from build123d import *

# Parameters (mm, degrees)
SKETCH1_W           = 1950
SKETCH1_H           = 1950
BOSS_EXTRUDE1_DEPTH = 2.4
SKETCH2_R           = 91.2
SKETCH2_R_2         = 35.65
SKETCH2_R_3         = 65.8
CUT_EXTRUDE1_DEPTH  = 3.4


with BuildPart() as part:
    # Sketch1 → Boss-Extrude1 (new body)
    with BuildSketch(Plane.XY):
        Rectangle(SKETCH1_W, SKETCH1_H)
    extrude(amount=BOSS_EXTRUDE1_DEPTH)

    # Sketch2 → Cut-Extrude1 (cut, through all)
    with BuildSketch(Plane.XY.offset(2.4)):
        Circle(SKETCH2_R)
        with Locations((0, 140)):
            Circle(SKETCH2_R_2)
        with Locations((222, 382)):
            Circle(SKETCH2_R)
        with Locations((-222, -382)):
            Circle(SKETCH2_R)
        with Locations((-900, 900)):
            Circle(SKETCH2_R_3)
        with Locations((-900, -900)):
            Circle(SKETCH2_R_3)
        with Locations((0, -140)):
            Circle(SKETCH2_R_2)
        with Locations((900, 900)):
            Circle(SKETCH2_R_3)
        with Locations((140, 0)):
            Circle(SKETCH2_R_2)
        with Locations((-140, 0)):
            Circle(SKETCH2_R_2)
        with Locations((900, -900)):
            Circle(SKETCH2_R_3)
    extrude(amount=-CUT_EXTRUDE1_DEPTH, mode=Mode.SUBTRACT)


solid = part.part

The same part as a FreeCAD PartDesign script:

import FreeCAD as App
import Part
import Sketcher

V = App.Vector
Q = App.Units.Quantity


def add_polygon(sketch, points):
    """Adds a closed chain of lines whose ends are joined by coincident constraints."""
    first, n = sketch.GeometryCount, len(points)
    for a, b in zip(points, points[1:] + points[:1]):
        sketch.addGeometry(Part.LineSegment(App.Vector(*a, 0), App.Vector(*b, 0)), False)
    for i in range(n):
        sketch.addConstraint(Sketcher.Constraint("Coincident", first + i, 2, first + (i + 1) % n, 1))

doc = App.newDocument("Part")
body = doc.addObject("PartDesign::Body", "Body")

# Sketch on XY plane
sketch1 = doc.addObject("Sketcher::SketchObject", "Sketch")
body.addObject(sketch1)
sketch1.AttachmentSupport = (doc.XY_Plane, [""])
sketch1.MapMode = "FlatFace"
add_polygon(sketch1, [(-975, 975), (-975, -975), (975, -975), (975, 975)])  # lines 0-3
sketch1.addConstraint([
    Sketcher.Constraint("Vertical", 0),
    Sketcher.Constraint("Horizontal", 1),
    Sketcher.Constraint("Vertical", 2),
    Sketcher.Constraint("Horizontal", 3),
    Sketcher.Constraint("Symmetric", 0, 2, 2, 2, -1, 1),
    Sketcher.Constraint("Equal", 3, 0),
    Sketcher.Constraint("DistanceX", 1, 1, 1, 2, Q("1950 mm")),
])
pad1 = doc.addObject("PartDesign::Pad", "Pad")
body.addObject(pad1)
pad1.Profile = sketch1
pad1.Length = 2.4

# Sketch on XY plane
sketch2 = doc.addObject("Sketcher::SketchObject", "Sketch001")
body.addObject(sketch2)
sketch2.AttachmentSupport = (doc.XY_Plane, [""])
sketch2.MapMode = "FlatFace"
sketch2.AttachmentOffset = App.Placement(V(0, 0, 2.4), App.Rotation())
sketch2.addGeometry([
    Part.Circle(V(0, 0, 0), V(0, 0, 1), 91.2),  # 0
    Part.Circle(V(0, 140, 0), V(0, 0, 1), 35.65),  # 1
    Part.Circle(V(222, 382, 0), V(0, 0, 1), 91.2),  # 2
    Part.Circle(V(-222, -382, 0), V(0, 0, 1), 91.2),  # 3
    Part.Circle(V(-900, 900, 0), V(0, 0, 1), 65.8),  # 4
    Part.Circle(V(-900, -900, 0), V(0, 0, 1), 65.8),  # 5
    Part.Circle(V(0, -140, 0), V(0, 0, 1), 35.65),  # 6
    Part.Circle(V(900, 900, 0), V(0, 0, 1), 65.8),  # 7
    Part.Circle(V(140, 0, 0), V(0, 0, 1), 35.65),  # 8
    Part.Circle(V(-140, 0, 0), V(0, 0, 1), 35.65),  # 9
    Part.Circle(V(900, -900, 0), V(0, 0, 1), 65.8),  # 10
], False)
sketch2.addConstraint([
    Sketcher.Constraint("Coincident", 0, 3, -1, 1),
    Sketcher.Constraint("Equal", 0, 2),
    Sketcher.Constraint("Equal", 2, 3),
    Sketcher.Constraint("Equal", 4, 5),
    Sketcher.Constraint("Equal", 1, 6),
    Sketcher.Constraint("Equal", 5, 7),
    Sketcher.Constraint("Equal", 6, 8),
    Sketcher.Constraint("Equal", 8, 9),
    Sketcher.Constraint("Equal", 7, 10),
    Sketcher.Constraint("Symmetric", 2, 3, 3, 3, -1, 1),
    Sketcher.Constraint("Symmetric", 1, 3, 6, 3, -1, 1),
    Sketcher.Constraint("Symmetric", 5, 3, 7, 3, -1, 1),
    Sketcher.Constraint("Symmetric", 8, 3, 9, 3, -1, 1),
    Sketcher.Constraint("Symmetric", 4, 3, 10, 3, -1, 1),
    Sketcher.Constraint("Symmetric", 4, 3, 7, 3, -2),
    Sketcher.Constraint("PointOnObject", 1, 3, -2),
    Sketcher.Constraint("PointOnObject", 8, 3, -1),
    Sketcher.Constraint("Diameter", 0, Q("182.4 mm")),
    Sketcher.Constraint("Diameter", 1, Q("71.3 mm")),
    Sketcher.Constraint("Diameter", 4, Q("131.6 mm")),
    Sketcher.Constraint("DistanceY", -1, 1, 1, 3, Q("140 mm")),
    Sketcher.Constraint("DistanceX", -1, 1, 2, 3, Q("222 mm")),
    Sketcher.Constraint("DistanceY", -1, 1, 2, 3, Q("382 mm")),
    Sketcher.Constraint("DistanceX", 4, 3, -1, 1, Q("900 mm")),
    Sketcher.Constraint("DistanceY", -1, 1, 4, 3, Q("900 mm")),
    Sketcher.Constraint("DistanceX", -1, 1, 8, 3, Q("140 mm")),
])
pocket1 = doc.addObject("PartDesign::Pocket", "Pocket")
body.addObject(pocket1)
pocket1.Profile = sketch2
pocket1.Type = "ThroughAll"

doc.recompute()
